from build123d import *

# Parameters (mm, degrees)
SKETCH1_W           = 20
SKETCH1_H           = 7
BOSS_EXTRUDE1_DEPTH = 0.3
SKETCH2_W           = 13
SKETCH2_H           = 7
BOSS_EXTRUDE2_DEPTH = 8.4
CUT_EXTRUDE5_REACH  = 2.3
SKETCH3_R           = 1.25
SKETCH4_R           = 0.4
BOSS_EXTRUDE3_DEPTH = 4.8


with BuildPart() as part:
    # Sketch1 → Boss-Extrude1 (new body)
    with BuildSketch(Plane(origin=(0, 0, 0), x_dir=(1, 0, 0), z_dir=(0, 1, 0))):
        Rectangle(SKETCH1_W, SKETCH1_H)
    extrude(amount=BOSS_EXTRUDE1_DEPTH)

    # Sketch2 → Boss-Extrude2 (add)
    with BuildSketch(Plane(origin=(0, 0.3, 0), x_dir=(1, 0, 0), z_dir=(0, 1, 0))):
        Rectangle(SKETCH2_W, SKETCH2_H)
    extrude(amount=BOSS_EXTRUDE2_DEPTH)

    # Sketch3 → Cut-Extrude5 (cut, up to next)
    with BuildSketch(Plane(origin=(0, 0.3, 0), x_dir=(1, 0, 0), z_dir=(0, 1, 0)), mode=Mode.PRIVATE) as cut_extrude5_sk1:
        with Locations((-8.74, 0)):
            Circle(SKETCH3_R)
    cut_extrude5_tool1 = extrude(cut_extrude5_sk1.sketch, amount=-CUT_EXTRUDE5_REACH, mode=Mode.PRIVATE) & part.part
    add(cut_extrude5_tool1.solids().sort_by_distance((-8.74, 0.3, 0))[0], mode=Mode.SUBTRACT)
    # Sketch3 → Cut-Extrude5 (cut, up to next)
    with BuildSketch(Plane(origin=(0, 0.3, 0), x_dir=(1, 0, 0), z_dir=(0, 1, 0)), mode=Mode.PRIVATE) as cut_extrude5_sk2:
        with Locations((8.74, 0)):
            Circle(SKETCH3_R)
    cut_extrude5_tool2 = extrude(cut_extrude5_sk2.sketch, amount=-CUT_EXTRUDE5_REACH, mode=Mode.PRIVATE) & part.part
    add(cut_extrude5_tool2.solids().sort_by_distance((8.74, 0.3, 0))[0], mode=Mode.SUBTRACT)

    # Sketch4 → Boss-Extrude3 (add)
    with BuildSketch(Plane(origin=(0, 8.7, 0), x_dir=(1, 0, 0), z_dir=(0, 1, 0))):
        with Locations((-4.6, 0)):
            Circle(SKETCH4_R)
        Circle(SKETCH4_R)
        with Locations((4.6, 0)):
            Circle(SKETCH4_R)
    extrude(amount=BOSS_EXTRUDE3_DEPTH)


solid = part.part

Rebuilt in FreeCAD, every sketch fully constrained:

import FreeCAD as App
import Part
import Sketcher

V = App.Vector

doc = App.newDocument("Part")
body = doc.addObject("PartDesign::Body", "Body")

# Sketch on XZ plane
sketch1 = doc.addObject("Sketcher::SketchObject", "Sketch")
body.addObject(sketch1)
sketch1.AttachmentSupport = (doc.XZ_Plane, [""])
sketch1.MapMode = "FlatFace"
sketch1.addGeometry([
    Part.LineSegment(V(-10, -4, 0), V(-10, 4, 0)),
    Part.LineSegment(V(-10, 4, 0), V(10, 4, 0)),
    Part.LineSegment(V(10, 4, 0), V(10, -4, 0)),
    Part.LineSegment(V(10, -4, 0), V(-10, -4, 0)),
], False)
sketch1.addConstraint([
    Sketcher.Constraint("Coincident", 0, 2, 1, 1),
    Sketcher.Constraint("Coincident", 1, 2, 2, 1),
    Sketcher.Constraint("Coincident", 2, 2, 3, 1),
    Sketcher.Constraint("Coincident", 3, 2, 0, 1),
    Sketcher.Constraint("Vertical", 0),
    Sketcher.Constraint("Horizontal", 1),
    Sketcher.Constraint("Vertical", 2),
    Sketcher.Constraint("Horizontal", 3),
    Sketcher.Constraint("Symmetric", 0, 2, 2, 2, -1, 1),
    Sketcher.Constraint("DistanceX", 1, 1, 1, 2, 20.0),
    Sketcher.Constraint("DistanceY", 0, 1, 0, 2, 7.0),
])
pad1 = doc.addObject("PartDesign::Pad", "Pad")
body.addObject(pad1)
pad1.Profile = sketch1
pad1.Length = 0.3
pad1.Reversed = True

# Sketch on XZ plane
sketch2 = doc.addObject("Sketcher::SketchObject", "Sketch001")
body.addObject(sketch2)
sketch2.AttachmentSupport = (doc.XZ_Plane, [""])
sketch2.MapMode = "FlatFace"
sketch2.AttachmentOffset = App.Placement(V(0, 0, -0.3), App.Rotation())
sketch2.addGeometry([
    Part.LineSegment(V(-6, -4, 0), V(-6, 4, 0)),
    Part.LineSegment(V(-6, 4, 0), V(6, 4, 0)),
    Part.LineSegment(V(6, 4, 0), V(6, -4, 0)),
    Part.LineSegment(V(6, -4, 0), V(-6, -4, 0)),
], False)
sketch2.addConstraint([
    Sketcher.Constraint("Coincident", 0, 2, 1, 1),
    Sketcher.Constraint("Coincident", 1, 2, 2, 1),
    Sketcher.Constraint("Coincident", 2, 2, 3, 1),
    Sketcher.Constraint("Coincident", 3, 2, 0, 1),
    Sketcher.Constraint("Vertical", 0),
    Sketcher.Constraint("Horizontal", 1),
    Sketcher.Constraint("Vertical", 2),
    Sketcher.Constraint("Horizontal", 3),
    Sketcher.Constraint("Symmetric", 0, 2, 2, 2, -1, 1),
    Sketcher.Constraint("DistanceX", 1, 1, 1, 2, 13.0),
    Sketcher.Constraint("DistanceY", 0, 1, 0, 2, 7.0),
])
pad2 = doc.addObject("PartDesign::Pad", "Pad001")
body.addObject(pad2)
pad2.Profile = sketch2
pad2.Length = 8.4
pad2.Reversed = True

# Sketch on XZ plane
sketch3 = doc.addObject("Sketcher::SketchObject", "Sketch002")
body.addObject(sketch3)
sketch3.AttachmentSupport = (doc.XZ_Plane, [""])
sketch3.MapMode = "FlatFace"
sketch3.AttachmentOffset = App.Placement(V(0, 0, -0.3), App.Rotation())
sketch3.addGeometry(Part.Circle(V(-8.7, 0, 0), V(0, 0, 1), 1.2), False)
sketch3.addConstraint([
    Sketcher.Constraint("PointOnObject", 0, 3, -1),
    Sketcher.Constraint("Diameter", 0, 2.5),
    Sketcher.Constraint("DistanceX", 0, 3, -1, 1, 8.74),
])
pocket1 = doc.addObject("PartDesign::Pocket", "Pocket")
body.addObject(pocket1)
pocket1.Profile = sketch3
pocket1.Type = "UpToFirst"
pocket1.Reversed = True

# Sketch on XZ plane
sketch4 = doc.addObject("Sketcher::SketchObject", "Sketch003")
body.addObject(sketch4)
sketch4.AttachmentSupport = (doc.XZ_Plane, [""])
sketch4.MapMode = "FlatFace"
sketch4.AttachmentOffset = App.Placement(V(0, 0, -0.3), App.Rotation())
sketch4.addGeometry(Part.Circle(V(8.7, 0, 0), V(0, 0, 1), 1.2), False)
sketch4.addConstraint([
    Sketcher.Constraint("PointOnObject", 0, 3, -1),
    Sketcher.Constraint("Diameter", 0, 2.5),
    Sketcher.Constraint("DistanceX", -1, 1, 0, 3, 8.74),
])
pocket2 = doc.addObject("PartDesign::Pocket", "Pocket001")
body.addObject(pocket2)
pocket2.Profile = sketch4
pocket2.Type = "UpToFirst"
pocket2.Reversed = True

# Sketch on XZ plane
sketch5 = doc.addObject("Sketcher::SketchObject", "Sketch004")
body.addObject(sketch5)
sketch5.AttachmentSupport = (doc.XZ_Plane, [""])
sketch5.MapMode = "FlatFace"
sketch5.AttachmentOffset = App.Placement(V(0, 0, -8.7), App.Rotation())
sketch5.addGeometry([
    Part.Circle(V(-4.6, 0, 0), V(0, 0, 1), 0.4),
    Part.Circle(V(0, 0, 0), V(0, 0, 1), 0.4),
    Part.Circle(V(4.6, 0, 0), V(0, 0, 1), 0.4),
], False)
sketch5.addConstraint([
    Sketcher.Constraint("Coincident", 1, 3, -1, 1),
    Sketcher.Constraint("Equal", 0, 1),
    Sketcher.Constraint("Equal", 1, 2),
    Sketcher.Constraint("Symmetric", 0, 3, 2, 3, -1, 1),
    Sketcher.Constraint("PointOnObject", 0, 3, -1),
    Sketcher.Constraint("Diameter", 0, 0.8),
    Sketcher.Constraint("DistanceX", 0, 3, -1, 1, 4.6),
])
pad3 = doc.addObject("PartDesign::Pad", "Pad002")
body.addObject(pad3)
pad3.Profile = sketch5
pad3.Length = 4.8
pad3.Reversed = True

doc.recompute()
